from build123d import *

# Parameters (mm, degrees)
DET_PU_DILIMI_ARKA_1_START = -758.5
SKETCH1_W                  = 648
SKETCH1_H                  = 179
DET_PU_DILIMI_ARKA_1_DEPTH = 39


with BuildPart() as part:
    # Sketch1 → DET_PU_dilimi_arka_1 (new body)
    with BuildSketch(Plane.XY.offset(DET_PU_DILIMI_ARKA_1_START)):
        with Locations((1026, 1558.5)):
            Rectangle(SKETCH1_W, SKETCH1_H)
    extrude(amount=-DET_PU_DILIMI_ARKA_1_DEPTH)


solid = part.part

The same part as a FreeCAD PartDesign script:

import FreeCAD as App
import Part
import Sketcher
from FreeCAD import Vector
Q = App.Units.Quantity

doc = App.newDocument("Part")
body = doc.addObject("PartDesign::Body", "Body")

# Sketch on XY plane
sketch1 = doc.addObject("Sketcher::SketchObject", "Sketch")
body.addObject(sketch1)
sketch1.AttachmentSupport = (doc.XY_Plane, [""])
sketch1.MapMode = "FlatFace"
sketch1.AttachmentOffset = App.Placement(Vector(0, 0, -758.5), App.Rotation())
sketch1.addGeometry(Part.LineSegment(Vector(702, 1648, 0), Vector(702, 1469, 0)), False)
sketch1.addGeometry(Part.LineSegment(Vector(702, 1469, 0), Vector(1350, 1469, 0)), False)
sketch1.addGeometry(Part.LineSegment(Vector(1350, 1469, 0), Vector(1350, 1648, 0)), False)
sketch1.addGeometry(Part.LineSegment(Vector(1350, 1648, 0), Vector(702, 1648, 0)), False)
sketch1.addConstraint(Sketcher.Constraint("Coincident", 0, 2, 1, 1))
sketch1.addConstraint(Sketcher.Constraint("Coincident", 1, 2, 2, 1))
sketch1.addConstraint(Sketcher.Constraint("Coincident", 2, 2, 3, 1))
sketch1.addConstraint(Sketcher.Constraint("Coincident", 3, 2, 0, 1))
sketch1.addConstraint(Sketcher.Constraint("Vertical", 0))
sketch1.addConstraint(Sketcher.Constraint("Horizontal", 1))
sketch1.addConstraint(Sketcher.Constraint("Vertical", 2))
sketch1.addConstraint(Sketcher.Constraint("Horizontal", 3))
sketch1.addConstraint(Sketcher.Constraint("DistanceX", 1, 1, 1, 2, Q("648 mm")))
sketch1.addConstraint(Sketcher.Constraint("DistanceY", 0, 2, 0, 1, Q("179 mm")))
sketch1.addConstraint(Sketcher.Constraint("DistanceX", -1, 1, 0, 2, Q("702 mm")))
sketch1.addConstraint(Sketcher.Constraint("DistanceY", -1, 1, 0, 2, Q("1469 mm")))
pad1 = doc.addObject("PartDesign::Pad", "Pad")
body.addObject(pad1)
pad1.Profile = sketch1
pad1.Length = 39
pad1.Reversed = True

doc.recompute()
